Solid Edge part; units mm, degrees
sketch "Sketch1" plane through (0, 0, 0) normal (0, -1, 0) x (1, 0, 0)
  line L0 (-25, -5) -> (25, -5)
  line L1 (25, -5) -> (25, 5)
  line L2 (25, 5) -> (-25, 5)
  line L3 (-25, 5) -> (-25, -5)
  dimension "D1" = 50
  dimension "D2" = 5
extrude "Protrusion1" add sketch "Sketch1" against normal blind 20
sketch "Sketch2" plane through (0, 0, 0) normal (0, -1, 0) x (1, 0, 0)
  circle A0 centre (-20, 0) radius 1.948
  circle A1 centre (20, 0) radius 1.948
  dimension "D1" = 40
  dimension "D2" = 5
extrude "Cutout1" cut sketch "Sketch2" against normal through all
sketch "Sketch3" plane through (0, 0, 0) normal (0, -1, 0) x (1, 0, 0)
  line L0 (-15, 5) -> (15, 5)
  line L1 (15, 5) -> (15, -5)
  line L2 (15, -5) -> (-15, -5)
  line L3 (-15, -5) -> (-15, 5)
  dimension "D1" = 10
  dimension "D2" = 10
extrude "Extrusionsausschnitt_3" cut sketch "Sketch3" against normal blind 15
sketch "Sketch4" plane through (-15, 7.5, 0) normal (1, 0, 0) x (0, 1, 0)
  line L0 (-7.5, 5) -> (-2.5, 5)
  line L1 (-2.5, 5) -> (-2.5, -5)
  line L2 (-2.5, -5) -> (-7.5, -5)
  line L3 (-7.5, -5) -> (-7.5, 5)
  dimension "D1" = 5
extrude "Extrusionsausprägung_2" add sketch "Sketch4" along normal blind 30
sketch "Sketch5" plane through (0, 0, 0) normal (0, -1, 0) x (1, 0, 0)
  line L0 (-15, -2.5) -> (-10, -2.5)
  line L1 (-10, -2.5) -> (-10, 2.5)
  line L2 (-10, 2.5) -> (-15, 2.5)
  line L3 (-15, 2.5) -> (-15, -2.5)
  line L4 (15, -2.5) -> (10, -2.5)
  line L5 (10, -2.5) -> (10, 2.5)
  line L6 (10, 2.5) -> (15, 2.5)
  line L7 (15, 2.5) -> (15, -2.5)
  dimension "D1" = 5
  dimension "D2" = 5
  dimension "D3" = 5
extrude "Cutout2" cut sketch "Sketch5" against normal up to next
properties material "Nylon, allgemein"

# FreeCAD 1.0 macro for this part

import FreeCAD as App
import Part
import Sketcher
from FreeCAD import Vector


def add_polygon(sketch, points):
    """Adds a closed chain of lines whose ends are joined by coincident constraints."""
    first, n = sketch.GeometryCount, len(points)
    for a, b in zip(points, points[1:] + points[:1]):
        sketch.addGeometry(Part.LineSegment(App.Vector(*a, 0), App.Vector(*b, 0)), False)
    for i in range(n):
        sketch.addConstraint(Sketcher.Constraint("Coincident", first + i, 2, first + (i + 1) % n, 1))

doc = App.newDocument("Part")
body = doc.addObject("PartDesign::Body", "Body")

# Sketch on XZ plane
sketch1 = body.newObject("Sketcher::SketchObject", "Sketch")
sketch1.AttachmentSupport = (doc.getObject("XZ_Plane"), [""])
sketch1.MapMode = "FlatFace"
add_polygon(sketch1, [(-25, 5), (-25, -5), (25, -5), (25, 5)])  # lines 0-3
sketch1.addConstraint([
    Sketcher.Constraint("Vertical", 0),
    Sketcher.Constraint("Horizontal", 1),
    Sketcher.Constraint("Vertical", 2),
    Sketcher.Constraint("Horizontal", 3),
    Sketcher.Constraint("Symmetric", 0, 2, 2, 2, -1, 1),
    Sketcher.Constraint("DistanceX", 0, 2, -1, 1, 25.0),
    Sketcher.Constraint("DistanceY", 0, 2, 0, 1, 10.0),
])
pad1 = body.newObject("PartDesign::Pad", "Pad")
pad1.Profile = sketch1
pad1.Length = 20
pad1.Reversed = True

# Sketch on XZ plane
sketch2 = body.newObject("Sketcher::SketchObject", "Sketch001")
sketch2.AttachmentSupport = (doc.getObject("XZ_Plane"), [""])
sketch2.MapMode = "FlatFace"
sketch2.addGeometry([
    Part.Circle(Vector(-20, 0, 0), Vector(0, 0, 1), 1.9),
    Part.Circle(Vector(20, 0, 0), Vector(0, 0, 1), 1.9),
], False)
sketch2.addConstraint([
    Sketcher.Constraint("Equal", 0, 1),
    Sketcher.Constraint("Symmetric", 0, 3, 1, 3, -1, 1),
    Sketcher.Constraint("PointOnObject", 0, 3, -1),
    Sketcher.Constraint("Diameter", 0, 3.896),
    Sketcher.Constraint("DistanceX", 0, 3, -1, 1, 20.0),
])
pocket1 = body.newObject("PartDesign::Pocket", "Pocket")
pocket1.Profile = sketch2
pocket1.Type = "ThroughAll"

# Sketch on XZ plane
sketch3 = body.newObject("Sketcher::SketchObject", "Sketch002")
sketch3.AttachmentSupport = (doc.getObject("XZ_Plane"), [""])
sketch3.MapMode = "FlatFace"
add_polygon(sketch3, [(15, 5), (-15, 5), (-15, -5), (15, -5)])  # lines 0-3
sketch3.addConstraint([
    Sketcher.Constraint("Horizontal", 0),
    Sketcher.Constraint("Vertical", 1),
    Sketcher.Constraint("Horizontal", 2),
    Sketcher.Constraint("Vertical", 3),
    Sketcher.Constraint("Symmetric", 0, 2, 2, 2, -1, 1),
    Sketcher.Constraint("DistanceX", 0, 2, 0, 1, 30.0),
    Sketcher.Constraint("DistanceY", 1, 2, 1, 1, 10.0),
])
pocket2 = body.newObject("PartDesign::Pocket", "Pocket001")
pocket2.Profile = sketch3
pocket2.Length = 15

# Sketch on YZ plane
sketch4 = body.newObject("Sketcher::SketchObject", "Sketch003")
sketch4.AttachmentSupport = (doc.getObject("YZ_Plane"), [""])
sketch4.MapMode = "FlatFace"
sketch4.AttachmentOffset = App.Placement(Vector(0, 0, -15), App.Rotation())
add_polygon(sketch4, [(5, 5), (0, 5), (0, -5), (5, -5)])  # lines 0-3
sketch4.addConstraint([
    Sketcher.Constraint("Horizontal", 0),
    Sketcher.Constraint("Vertical", 1),
    Sketcher.Constraint("Horizontal", 2),
    Sketcher.Constraint("Vertical", 3),
    Sketcher.Constraint("Symmetric", 0, 2, 1, 2, -1, 1),
    Sketcher.Constraint("DistanceX", 0, 2, 0, 1, 5.0),
    Sketcher.Constraint("DistanceY", 1, 2, 1, 1, 10.0),
])
pad2 = body.newObject("PartDesign::Pad", "Pad001")
pad2.Profile = sketch4
pad2.Length = 30

# Sketch on XZ plane
sketch5 = body.newObject("Sketcher::SketchObject", "Sketch004")
sketch5.AttachmentSupport = (doc.getObject("XZ_Plane"), [""])
sketch5.MapMode = "FlatFace"
add_polygon(sketch5, [(-15, 2), (-15, -2), (-10, -2), (-10, 2)])  # lines 0-3
add_polygon(sketch5, [(10, -2), (15, -2), (15, 2), (10, 2)])  # lines 4-7
sketch5.addConstraint([
    Sketcher.Constraint("Vertical", 0),
    Sketcher.Constraint("Horizontal", 1),
    Sketcher.Constraint("Vertical", 2),
    Sketcher.Constraint("Horizontal", 3),
    Sketcher.Constraint("Horizontal", 4),
    Sketcher.Constraint("Vertical", 5),
    Sketcher.Constraint("Horizontal", 6),
    Sketcher.Constraint("Vertical", 7),
    Sketcher.Constraint("Symmetric", 3, 2, 4, 2, -1, 1),
    Sketcher.Constraint("Symmetric", 1, 2, 6, 2, -1, 1),
    Sketcher.Constraint("Horizontal", 1, 2, 4, 2),
    Sketcher.Constraint("Equal", 6, 0),
    Sketcher.Constraint("DistanceX", 1, 2, -1, 1, 10.0),
    Sketcher.Constraint("DistanceX", 1, 1, 1, 2, 5.0),
])
pocket3 = body.newObject("PartDesign::Pocket", "Pocket002")
pocket3.Profile = sketch5
pocket3.Type = "UpToFirst"

doc.recompute()
